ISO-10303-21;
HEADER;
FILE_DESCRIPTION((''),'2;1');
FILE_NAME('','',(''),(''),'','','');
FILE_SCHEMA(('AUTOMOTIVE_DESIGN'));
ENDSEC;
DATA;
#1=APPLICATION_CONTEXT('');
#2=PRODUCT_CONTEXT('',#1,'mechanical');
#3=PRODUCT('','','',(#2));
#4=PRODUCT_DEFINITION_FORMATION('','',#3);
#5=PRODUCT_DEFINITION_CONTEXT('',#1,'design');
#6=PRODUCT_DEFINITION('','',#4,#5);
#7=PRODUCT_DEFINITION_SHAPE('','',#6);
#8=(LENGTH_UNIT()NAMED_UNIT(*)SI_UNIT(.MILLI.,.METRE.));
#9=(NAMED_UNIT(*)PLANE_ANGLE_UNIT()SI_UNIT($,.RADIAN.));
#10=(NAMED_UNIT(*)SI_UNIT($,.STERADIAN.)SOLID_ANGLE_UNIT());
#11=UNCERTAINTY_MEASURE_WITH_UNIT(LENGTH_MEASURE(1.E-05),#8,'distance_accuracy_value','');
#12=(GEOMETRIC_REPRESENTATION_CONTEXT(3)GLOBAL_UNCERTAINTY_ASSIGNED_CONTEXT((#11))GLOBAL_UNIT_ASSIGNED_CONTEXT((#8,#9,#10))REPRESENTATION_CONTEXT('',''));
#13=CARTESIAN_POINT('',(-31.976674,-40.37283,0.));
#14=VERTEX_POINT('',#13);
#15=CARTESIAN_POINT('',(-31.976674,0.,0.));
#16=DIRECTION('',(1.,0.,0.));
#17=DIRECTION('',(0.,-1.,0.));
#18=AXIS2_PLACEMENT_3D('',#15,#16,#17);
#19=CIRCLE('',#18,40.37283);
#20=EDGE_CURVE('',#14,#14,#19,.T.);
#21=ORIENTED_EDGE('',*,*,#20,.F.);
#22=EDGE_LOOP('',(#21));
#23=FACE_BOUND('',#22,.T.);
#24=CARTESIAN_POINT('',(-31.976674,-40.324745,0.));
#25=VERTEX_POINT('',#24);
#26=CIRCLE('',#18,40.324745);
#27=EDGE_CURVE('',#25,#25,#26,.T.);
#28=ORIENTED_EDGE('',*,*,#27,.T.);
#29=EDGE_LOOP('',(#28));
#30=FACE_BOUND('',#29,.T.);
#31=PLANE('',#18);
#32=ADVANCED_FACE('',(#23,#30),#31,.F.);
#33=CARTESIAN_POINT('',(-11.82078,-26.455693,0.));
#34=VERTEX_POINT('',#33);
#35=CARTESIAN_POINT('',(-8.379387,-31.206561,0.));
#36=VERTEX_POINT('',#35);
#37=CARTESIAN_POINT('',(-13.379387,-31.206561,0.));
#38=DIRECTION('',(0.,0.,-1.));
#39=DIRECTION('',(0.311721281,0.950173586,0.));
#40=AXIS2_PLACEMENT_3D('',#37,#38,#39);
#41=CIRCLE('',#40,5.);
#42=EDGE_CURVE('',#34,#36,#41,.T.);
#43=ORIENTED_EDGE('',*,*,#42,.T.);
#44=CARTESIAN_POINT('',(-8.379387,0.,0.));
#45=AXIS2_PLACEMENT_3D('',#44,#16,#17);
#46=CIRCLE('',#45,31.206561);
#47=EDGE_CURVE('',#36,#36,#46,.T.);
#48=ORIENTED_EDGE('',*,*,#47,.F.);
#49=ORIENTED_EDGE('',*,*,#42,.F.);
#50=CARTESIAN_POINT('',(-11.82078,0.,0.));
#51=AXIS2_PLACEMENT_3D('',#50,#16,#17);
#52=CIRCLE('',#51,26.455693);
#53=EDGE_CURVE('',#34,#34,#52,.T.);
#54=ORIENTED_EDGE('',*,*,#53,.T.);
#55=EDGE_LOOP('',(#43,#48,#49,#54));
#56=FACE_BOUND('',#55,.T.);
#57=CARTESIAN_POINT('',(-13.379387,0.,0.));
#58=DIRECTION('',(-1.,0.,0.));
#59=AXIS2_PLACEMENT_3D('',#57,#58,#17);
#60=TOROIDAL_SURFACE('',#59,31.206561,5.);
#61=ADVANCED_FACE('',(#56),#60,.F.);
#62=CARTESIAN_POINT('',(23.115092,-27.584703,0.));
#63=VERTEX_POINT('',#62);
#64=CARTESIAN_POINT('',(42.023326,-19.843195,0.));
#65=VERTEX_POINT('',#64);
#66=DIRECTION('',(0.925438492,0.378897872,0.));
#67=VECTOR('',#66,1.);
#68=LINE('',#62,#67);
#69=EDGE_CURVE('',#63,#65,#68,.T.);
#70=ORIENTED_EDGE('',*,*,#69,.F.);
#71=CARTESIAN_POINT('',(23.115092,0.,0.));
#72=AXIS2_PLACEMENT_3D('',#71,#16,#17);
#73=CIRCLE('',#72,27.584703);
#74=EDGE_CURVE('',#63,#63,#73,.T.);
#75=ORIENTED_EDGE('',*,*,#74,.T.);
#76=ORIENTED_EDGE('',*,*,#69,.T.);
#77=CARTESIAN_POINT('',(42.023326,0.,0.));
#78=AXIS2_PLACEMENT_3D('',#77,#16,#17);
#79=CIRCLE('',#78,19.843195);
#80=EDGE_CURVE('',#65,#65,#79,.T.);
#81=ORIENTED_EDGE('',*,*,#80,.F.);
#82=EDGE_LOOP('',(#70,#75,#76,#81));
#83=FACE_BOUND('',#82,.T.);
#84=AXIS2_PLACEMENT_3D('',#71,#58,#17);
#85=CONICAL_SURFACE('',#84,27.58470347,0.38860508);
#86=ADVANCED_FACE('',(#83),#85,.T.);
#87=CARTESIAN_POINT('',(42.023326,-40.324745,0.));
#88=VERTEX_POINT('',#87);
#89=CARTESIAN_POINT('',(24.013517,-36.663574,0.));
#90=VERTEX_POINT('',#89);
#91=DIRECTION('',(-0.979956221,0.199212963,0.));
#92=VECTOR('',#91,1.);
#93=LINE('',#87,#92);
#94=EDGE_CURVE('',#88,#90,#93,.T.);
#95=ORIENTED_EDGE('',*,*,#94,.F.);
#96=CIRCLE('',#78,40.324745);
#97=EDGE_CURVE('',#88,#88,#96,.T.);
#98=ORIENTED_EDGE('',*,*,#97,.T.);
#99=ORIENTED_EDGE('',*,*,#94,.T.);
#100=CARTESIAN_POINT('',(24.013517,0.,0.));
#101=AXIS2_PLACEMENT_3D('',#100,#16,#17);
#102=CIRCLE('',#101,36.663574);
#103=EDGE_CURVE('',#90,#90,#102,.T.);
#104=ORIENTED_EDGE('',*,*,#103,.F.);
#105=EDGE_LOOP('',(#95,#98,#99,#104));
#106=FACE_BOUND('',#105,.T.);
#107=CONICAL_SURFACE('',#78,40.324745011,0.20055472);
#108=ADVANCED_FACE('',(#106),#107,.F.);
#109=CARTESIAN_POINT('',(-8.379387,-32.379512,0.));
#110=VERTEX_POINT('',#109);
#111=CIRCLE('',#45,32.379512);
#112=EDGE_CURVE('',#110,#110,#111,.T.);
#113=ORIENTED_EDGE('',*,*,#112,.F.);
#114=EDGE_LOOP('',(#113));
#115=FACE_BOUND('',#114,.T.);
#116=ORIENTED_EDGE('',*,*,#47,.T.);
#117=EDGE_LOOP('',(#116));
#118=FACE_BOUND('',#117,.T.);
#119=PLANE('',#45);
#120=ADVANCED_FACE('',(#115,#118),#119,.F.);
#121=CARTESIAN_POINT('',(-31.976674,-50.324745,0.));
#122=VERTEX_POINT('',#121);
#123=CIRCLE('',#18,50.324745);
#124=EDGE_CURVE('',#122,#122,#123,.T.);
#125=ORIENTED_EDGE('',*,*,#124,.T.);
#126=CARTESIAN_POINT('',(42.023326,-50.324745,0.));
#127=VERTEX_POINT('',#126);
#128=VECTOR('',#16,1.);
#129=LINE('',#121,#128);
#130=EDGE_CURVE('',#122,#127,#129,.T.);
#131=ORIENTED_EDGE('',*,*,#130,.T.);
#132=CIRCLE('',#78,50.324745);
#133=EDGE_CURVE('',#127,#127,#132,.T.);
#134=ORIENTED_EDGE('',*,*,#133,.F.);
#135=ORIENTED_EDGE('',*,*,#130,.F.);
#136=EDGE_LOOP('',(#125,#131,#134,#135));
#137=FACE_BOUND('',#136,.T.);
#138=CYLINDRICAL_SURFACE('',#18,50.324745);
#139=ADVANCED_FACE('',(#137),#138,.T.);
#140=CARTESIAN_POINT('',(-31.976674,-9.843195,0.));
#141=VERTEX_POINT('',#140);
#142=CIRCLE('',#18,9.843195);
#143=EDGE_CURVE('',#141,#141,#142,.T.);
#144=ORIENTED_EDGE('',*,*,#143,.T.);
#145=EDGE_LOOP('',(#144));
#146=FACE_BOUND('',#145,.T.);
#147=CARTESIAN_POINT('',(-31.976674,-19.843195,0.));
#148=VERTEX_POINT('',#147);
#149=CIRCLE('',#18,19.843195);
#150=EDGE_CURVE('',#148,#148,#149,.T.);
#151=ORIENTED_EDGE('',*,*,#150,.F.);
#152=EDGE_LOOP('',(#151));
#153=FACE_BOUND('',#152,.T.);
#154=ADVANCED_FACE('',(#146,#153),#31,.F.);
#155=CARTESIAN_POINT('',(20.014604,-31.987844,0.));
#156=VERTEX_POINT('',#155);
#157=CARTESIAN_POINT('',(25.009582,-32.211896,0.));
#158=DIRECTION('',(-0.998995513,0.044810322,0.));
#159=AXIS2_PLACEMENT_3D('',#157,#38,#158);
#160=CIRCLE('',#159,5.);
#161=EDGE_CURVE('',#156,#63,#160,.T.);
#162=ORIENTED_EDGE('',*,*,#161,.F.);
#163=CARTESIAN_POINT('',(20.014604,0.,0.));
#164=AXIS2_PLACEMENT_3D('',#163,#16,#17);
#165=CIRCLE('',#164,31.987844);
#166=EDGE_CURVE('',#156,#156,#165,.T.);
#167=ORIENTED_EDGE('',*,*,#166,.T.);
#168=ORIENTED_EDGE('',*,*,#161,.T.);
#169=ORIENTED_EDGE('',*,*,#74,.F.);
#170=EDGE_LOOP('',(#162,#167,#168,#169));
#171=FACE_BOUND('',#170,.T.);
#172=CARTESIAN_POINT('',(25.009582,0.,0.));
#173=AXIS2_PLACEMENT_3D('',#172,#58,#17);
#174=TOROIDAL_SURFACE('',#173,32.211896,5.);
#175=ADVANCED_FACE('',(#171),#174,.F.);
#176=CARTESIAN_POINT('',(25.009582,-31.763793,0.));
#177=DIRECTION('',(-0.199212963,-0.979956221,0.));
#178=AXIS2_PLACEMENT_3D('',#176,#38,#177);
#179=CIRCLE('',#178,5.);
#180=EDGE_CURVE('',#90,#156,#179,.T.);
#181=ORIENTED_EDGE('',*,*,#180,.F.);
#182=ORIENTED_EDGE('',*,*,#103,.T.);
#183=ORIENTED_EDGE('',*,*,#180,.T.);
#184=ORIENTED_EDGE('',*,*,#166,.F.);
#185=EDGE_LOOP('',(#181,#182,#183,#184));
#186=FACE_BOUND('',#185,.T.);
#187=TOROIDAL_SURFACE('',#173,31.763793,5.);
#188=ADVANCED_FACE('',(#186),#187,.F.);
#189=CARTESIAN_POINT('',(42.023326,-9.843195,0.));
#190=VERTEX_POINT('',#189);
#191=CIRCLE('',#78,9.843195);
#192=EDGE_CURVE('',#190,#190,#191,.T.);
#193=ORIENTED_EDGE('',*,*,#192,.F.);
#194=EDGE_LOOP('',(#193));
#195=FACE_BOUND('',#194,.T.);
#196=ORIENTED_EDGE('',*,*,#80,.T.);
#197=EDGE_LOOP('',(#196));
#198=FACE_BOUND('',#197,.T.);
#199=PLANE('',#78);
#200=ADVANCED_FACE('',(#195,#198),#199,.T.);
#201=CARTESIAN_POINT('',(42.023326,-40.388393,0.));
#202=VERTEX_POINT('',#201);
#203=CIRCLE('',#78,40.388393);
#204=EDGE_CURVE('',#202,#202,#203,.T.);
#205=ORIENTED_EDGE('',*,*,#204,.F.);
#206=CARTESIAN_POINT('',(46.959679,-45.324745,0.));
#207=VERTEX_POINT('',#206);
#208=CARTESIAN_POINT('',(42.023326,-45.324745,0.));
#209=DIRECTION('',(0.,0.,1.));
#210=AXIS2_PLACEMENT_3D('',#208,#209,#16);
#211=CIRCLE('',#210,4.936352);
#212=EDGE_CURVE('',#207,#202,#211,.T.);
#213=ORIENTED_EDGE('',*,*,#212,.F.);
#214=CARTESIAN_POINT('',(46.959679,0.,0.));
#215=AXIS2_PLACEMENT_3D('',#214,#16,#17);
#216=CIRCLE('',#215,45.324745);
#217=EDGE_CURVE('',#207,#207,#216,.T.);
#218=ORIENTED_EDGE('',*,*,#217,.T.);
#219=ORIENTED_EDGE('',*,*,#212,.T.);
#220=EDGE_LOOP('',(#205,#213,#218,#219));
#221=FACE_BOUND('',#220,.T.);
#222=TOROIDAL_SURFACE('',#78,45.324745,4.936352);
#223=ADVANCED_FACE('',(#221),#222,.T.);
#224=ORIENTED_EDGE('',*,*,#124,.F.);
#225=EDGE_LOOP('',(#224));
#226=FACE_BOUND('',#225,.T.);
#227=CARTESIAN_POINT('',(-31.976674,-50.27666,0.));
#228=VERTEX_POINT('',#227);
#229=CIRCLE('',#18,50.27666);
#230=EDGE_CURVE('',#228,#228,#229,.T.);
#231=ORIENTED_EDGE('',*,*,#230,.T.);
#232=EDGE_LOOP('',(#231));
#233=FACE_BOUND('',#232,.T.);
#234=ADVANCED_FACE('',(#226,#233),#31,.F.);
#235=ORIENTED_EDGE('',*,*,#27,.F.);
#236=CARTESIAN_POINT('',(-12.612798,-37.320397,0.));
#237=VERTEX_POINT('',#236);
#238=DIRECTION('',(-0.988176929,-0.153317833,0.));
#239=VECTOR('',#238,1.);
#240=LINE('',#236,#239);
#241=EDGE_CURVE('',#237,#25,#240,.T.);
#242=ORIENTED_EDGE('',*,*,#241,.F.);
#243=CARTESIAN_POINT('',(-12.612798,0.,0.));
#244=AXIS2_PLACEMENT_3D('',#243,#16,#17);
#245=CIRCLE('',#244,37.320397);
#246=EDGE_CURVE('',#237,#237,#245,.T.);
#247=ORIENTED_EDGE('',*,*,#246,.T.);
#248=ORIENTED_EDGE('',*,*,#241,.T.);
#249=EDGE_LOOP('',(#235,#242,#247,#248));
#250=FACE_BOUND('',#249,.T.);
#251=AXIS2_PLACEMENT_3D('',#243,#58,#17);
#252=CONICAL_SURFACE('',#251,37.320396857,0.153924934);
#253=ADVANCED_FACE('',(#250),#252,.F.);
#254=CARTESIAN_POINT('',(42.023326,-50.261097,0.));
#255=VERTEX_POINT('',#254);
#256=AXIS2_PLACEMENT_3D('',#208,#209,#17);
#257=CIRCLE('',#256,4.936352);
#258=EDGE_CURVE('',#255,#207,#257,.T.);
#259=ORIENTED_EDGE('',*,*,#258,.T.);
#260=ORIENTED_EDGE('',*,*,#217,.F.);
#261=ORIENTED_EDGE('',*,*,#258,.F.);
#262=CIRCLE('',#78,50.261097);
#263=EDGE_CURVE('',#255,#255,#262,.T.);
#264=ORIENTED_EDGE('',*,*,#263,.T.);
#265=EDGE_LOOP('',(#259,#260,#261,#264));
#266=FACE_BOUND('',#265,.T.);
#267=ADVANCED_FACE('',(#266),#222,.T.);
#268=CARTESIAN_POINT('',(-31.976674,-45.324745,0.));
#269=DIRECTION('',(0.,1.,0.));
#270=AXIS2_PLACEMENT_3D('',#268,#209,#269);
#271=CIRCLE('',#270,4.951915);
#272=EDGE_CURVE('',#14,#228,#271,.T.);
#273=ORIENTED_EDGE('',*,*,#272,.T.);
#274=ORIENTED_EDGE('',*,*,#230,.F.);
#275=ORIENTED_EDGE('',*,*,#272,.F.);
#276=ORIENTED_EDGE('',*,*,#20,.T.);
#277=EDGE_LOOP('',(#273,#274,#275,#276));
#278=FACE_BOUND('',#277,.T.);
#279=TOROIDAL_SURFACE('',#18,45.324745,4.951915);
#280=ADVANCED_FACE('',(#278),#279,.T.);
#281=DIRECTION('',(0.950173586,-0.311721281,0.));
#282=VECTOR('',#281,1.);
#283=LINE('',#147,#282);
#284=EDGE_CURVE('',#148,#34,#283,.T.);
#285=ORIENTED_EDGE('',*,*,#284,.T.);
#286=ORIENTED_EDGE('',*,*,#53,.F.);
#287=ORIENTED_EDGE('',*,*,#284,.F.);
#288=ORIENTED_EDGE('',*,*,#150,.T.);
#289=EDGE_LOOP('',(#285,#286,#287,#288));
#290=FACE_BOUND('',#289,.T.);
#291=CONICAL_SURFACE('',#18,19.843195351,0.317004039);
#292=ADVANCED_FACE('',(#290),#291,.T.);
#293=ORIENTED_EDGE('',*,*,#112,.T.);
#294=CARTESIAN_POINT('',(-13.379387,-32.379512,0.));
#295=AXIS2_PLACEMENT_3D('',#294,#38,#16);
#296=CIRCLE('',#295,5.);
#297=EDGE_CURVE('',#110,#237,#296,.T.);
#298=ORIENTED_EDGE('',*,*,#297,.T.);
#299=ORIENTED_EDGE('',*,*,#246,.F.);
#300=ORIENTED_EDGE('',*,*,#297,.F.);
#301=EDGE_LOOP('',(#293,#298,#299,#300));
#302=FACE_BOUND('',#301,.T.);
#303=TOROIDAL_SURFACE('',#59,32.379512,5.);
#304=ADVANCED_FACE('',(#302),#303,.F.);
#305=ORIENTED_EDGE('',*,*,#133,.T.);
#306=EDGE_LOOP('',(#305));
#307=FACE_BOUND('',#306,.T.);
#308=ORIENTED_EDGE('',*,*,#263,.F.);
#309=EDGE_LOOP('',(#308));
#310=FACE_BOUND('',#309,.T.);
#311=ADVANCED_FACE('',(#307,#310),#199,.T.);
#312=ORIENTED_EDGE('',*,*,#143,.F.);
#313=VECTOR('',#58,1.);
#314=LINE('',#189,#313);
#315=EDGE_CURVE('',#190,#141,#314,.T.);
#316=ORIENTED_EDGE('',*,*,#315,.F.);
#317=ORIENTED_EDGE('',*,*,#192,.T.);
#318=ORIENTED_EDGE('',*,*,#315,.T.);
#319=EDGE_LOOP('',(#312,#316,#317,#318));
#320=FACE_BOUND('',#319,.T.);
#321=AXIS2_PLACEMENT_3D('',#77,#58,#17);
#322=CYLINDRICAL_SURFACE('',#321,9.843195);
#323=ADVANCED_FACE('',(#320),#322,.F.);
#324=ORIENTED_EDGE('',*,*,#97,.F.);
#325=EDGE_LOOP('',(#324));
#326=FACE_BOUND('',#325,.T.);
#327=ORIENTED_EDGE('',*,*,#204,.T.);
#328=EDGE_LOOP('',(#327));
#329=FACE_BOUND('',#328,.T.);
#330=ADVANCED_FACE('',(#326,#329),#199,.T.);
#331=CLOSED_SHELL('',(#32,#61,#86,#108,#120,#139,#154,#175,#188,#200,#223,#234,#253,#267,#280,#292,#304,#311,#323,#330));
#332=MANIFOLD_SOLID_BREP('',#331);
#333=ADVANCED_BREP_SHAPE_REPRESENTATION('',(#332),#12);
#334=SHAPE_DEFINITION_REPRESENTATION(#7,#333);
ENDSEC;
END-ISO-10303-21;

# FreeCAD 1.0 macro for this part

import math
import FreeCAD as App
import Part
import Sketcher
Q = App.Units.Quantity

doc = App.newDocument("Part")
body = doc.addObject("PartDesign::Body", "Body")

sketch1 = body.newObject("Sketcher::SketchObject", "Sketch")
sketch1.AttachmentSupport = (doc.getObject("XY_Plane"), [""])
sketch1.MapMode = "FlatFace"
sketch1.addGeometry([
    Part.ArcOfCircle(Part.Circle(App.Vector(25.01, -31.764, 0), App.Vector(0, 0, 1), 5), math.radians(-177), math.radians(-101)),
    Part.ArcOfCircle(Part.Circle(App.Vector(25.01, -32.212, 0), App.Vector(0, 0, 1), 5), math.radians(112), math.radians(177)),
    Part.LineSegment(App.Vector(23.115, -27.585, 0), App.Vector(42.023, -19.843, 0)),
    Part.LineSegment(App.Vector(42.023, -19.843, 0), App.Vector(42.023, -9.843, 0)),
    Part.LineSegment(App.Vector(42.023, -9.843, 0), App.Vector(-31.977, -9.843, 0)),
    Part.LineSegment(App.Vector(-31.977, -9.843, 0), App.Vector(-31.977, -19.843, 0)),
    Part.LineSegment(App.Vector(-31.977, -19.843, 0), App.Vector(-11.821, -26.456, 0)),
    Part.ArcOfCircle(Part.Circle(App.Vector(-13.379, -31.207, 0), App.Vector(0, 0, 1), 5), math.radians(0), math.radians(72)),
    Part.LineSegment(App.Vector(-8.379, -31.207, 0), App.Vector(-8.379, -32.38, 0)),
    Part.ArcOfCircle(Part.Circle(App.Vector(-13.379, -32.38, 0), App.Vector(0, 0, 1), 5), math.radians(-81), math.radians(0)),
    Part.LineSegment(App.Vector(-12.613, -37.32, 0), App.Vector(-31.977, -40.325, 0)),
    Part.LineSegment(App.Vector(-31.977, -40.325, 0), App.Vector(-31.977, -40.373, 0)),
    Part.ArcOfCircle(Part.Circle(App.Vector(-31.977, -45.325, 0), App.Vector(0, 0, 1), 4.952), math.radians(90), math.radians(270)),
    Part.LineSegment(App.Vector(-31.977, -50.277, 0), App.Vector(-31.977, -50.325, 0)),
    Part.LineSegment(App.Vector(-31.977, -50.325, 0), App.Vector(42.023, -50.325, 0)),
    Part.LineSegment(App.Vector(42.023, -50.325, 0), App.Vector(42.023, -50.261, 0)),
    Part.ArcOfCircle(Part.Circle(App.Vector(42.023, -45.325, 0), App.Vector(0, 0, 1), 4.936), math.radians(-90), math.radians(0)),
    Part.ArcOfCircle(Part.Circle(App.Vector(42.023, -45.325, 0), App.Vector(0, 0, 1), 4.936), math.radians(0), math.radians(90)),
    Part.LineSegment(App.Vector(42.023, -40.388, 0), App.Vector(42.023, -40.325, 0)),
    Part.LineSegment(App.Vector(42.023, -40.325, 0), App.Vector(24.014, -36.664, 0)),
], False)
sketch1.addConstraint([
    Sketcher.Constraint("Coincident", 0, 1, 1, 2),
    Sketcher.Constraint("Tangent", 1, 1, 2, 1),
    Sketcher.Constraint("Coincident", 2, 2, 3, 1),
    Sketcher.Constraint("Coincident", 3, 2, 4, 1),
    Sketcher.Constraint("Coincident", 4, 2, 5, 1),
    Sketcher.Constraint("Coincident", 5, 2, 6, 1),
    Sketcher.Constraint("Tangent", 6, 2, 7, 2),
    Sketcher.Constraint("Tangent", 7, 1, 8, 1),
    Sketcher.Constraint("Tangent", 8, 2, 9, 2),
    Sketcher.Constraint("Tangent", 9, 1, 10, 1),
    Sketcher.Constraint("Coincident", 10, 2, 11, 1),
    Sketcher.Constraint("Coincident", 11, 2, 12, 1),
    Sketcher.Constraint("Coincident", 12, 2, 13, 1),
    Sketcher.Constraint("Coincident", 13, 2, 14, 1),
    Sketcher.Constraint("Coincident", 14, 2, 15, 1),
    Sketcher.Constraint("Coincident", 15, 2, 16, 1),
    Sketcher.Constraint("Tangent", 16, 2, 17, 1),
    Sketcher.Constraint("Coincident", 17, 2, 18, 1),
    Sketcher.Constraint("Coincident", 18, 2, 19, 1),
    Sketcher.Constraint("Tangent", 19, 2, 0, 2),
    Sketcher.Constraint("Vertical", 3),
    Sketcher.Constraint("Horizontal", 4),
    Sketcher.Constraint("Vertical", 5),
    Sketcher.Constraint("Vertical", 8),
    Sketcher.Constraint("Vertical", 11),
    Sketcher.Constraint("Vertical", 13),
    Sketcher.Constraint("Horizontal", 14),
    Sketcher.Constraint("Vertical", 15),
    Sketcher.Constraint("Vertical", 18),
    Sketcher.Constraint("Equal", 0, 1),
    Sketcher.Constraint("Equal", 1, 7),
    Sketcher.Constraint("Equal", 7, 9),
    Sketcher.Constraint("Equal", 16, 17),
    Sketcher.Constraint("Horizontal", 12, 3, 16, 3),
    Sketcher.Constraint("Horizontal", 2, 2, 5, 2),
    Sketcher.Constraint("Horizontal", 17, 3, 16, 2),
    Sketcher.Constraint("Horizontal", 10, 2, 18, 2),
    Sketcher.Constraint("Vertical", 0, 3, 1, 3),
    Sketcher.Constraint("Vertical", 17, 3, 2, 2),
    Sketcher.Constraint("Vertical", 12, 3, 4, 2),
    Sketcher.Constraint("Vertical", 5, 2, 10, 2),
    Sketcher.Constraint("Vertical", 11, 2, 12, 2),
    Sketcher.Constraint("Vertical", 3, 2, 14, 2),
    Sketcher.Constraint("Vertical", 15, 2, 17, 2),
    Sketcher.Constraint("Equal", 11, 13),
    Sketcher.Constraint("Radius", 0, Q("5 mm")),
    Sketcher.Constraint("DistanceX", 4, 2, 4, 1, Q("74 mm")),
    Sketcher.Constraint("DistanceY", 3, 1, 3, 2, Q("10 mm")),
    Sketcher.Constraint("DistanceY", 12, 3, 10, 2, Q("5 mm")),
    Sketcher.Constraint("Radius", 12, Q("4.951915 mm")),
    Sketcher.Constraint("Radius", 16, Q("4.936352 mm")),
    Sketcher.Constraint("DistanceY", 8, 2, 8, 1, Q("1.172951 mm")),
    Sketcher.Constraint("DistanceY", 16, 3, 0, 1, Q("13.336901 mm")),
    Sketcher.Constraint("DistanceY", 1, 3, 2, 2, Q("12.368701 mm")),
    Sketcher.Constraint("DistanceY", 15, 2, 1, 3, Q("18.049201 mm")),
    Sketcher.Constraint("Distance", 2, Q("20.431648 mm")),
    Sketcher.Constraint("DistanceX", -1, 1, 0, 3, Q("25.009582 mm")),
    Sketcher.Constraint("DistanceY", 7, 3, -1, 1, Q("31.206561 mm")),
    Sketcher.Constraint("DistanceX", 6, 2, -1, 1, Q("11.82078 mm")),
    Sketcher.Constraint("DistanceY", 11, 2, -1, 1, Q("40.37283 mm")),
])
revolution = body.newObject("PartDesign::Revolution", "Revolution")
revolution.Profile = sketch1
revolution.ReferenceAxis = (sketch1, ["H_Axis"])
revolution.Angle = 360

doc.recompute()
